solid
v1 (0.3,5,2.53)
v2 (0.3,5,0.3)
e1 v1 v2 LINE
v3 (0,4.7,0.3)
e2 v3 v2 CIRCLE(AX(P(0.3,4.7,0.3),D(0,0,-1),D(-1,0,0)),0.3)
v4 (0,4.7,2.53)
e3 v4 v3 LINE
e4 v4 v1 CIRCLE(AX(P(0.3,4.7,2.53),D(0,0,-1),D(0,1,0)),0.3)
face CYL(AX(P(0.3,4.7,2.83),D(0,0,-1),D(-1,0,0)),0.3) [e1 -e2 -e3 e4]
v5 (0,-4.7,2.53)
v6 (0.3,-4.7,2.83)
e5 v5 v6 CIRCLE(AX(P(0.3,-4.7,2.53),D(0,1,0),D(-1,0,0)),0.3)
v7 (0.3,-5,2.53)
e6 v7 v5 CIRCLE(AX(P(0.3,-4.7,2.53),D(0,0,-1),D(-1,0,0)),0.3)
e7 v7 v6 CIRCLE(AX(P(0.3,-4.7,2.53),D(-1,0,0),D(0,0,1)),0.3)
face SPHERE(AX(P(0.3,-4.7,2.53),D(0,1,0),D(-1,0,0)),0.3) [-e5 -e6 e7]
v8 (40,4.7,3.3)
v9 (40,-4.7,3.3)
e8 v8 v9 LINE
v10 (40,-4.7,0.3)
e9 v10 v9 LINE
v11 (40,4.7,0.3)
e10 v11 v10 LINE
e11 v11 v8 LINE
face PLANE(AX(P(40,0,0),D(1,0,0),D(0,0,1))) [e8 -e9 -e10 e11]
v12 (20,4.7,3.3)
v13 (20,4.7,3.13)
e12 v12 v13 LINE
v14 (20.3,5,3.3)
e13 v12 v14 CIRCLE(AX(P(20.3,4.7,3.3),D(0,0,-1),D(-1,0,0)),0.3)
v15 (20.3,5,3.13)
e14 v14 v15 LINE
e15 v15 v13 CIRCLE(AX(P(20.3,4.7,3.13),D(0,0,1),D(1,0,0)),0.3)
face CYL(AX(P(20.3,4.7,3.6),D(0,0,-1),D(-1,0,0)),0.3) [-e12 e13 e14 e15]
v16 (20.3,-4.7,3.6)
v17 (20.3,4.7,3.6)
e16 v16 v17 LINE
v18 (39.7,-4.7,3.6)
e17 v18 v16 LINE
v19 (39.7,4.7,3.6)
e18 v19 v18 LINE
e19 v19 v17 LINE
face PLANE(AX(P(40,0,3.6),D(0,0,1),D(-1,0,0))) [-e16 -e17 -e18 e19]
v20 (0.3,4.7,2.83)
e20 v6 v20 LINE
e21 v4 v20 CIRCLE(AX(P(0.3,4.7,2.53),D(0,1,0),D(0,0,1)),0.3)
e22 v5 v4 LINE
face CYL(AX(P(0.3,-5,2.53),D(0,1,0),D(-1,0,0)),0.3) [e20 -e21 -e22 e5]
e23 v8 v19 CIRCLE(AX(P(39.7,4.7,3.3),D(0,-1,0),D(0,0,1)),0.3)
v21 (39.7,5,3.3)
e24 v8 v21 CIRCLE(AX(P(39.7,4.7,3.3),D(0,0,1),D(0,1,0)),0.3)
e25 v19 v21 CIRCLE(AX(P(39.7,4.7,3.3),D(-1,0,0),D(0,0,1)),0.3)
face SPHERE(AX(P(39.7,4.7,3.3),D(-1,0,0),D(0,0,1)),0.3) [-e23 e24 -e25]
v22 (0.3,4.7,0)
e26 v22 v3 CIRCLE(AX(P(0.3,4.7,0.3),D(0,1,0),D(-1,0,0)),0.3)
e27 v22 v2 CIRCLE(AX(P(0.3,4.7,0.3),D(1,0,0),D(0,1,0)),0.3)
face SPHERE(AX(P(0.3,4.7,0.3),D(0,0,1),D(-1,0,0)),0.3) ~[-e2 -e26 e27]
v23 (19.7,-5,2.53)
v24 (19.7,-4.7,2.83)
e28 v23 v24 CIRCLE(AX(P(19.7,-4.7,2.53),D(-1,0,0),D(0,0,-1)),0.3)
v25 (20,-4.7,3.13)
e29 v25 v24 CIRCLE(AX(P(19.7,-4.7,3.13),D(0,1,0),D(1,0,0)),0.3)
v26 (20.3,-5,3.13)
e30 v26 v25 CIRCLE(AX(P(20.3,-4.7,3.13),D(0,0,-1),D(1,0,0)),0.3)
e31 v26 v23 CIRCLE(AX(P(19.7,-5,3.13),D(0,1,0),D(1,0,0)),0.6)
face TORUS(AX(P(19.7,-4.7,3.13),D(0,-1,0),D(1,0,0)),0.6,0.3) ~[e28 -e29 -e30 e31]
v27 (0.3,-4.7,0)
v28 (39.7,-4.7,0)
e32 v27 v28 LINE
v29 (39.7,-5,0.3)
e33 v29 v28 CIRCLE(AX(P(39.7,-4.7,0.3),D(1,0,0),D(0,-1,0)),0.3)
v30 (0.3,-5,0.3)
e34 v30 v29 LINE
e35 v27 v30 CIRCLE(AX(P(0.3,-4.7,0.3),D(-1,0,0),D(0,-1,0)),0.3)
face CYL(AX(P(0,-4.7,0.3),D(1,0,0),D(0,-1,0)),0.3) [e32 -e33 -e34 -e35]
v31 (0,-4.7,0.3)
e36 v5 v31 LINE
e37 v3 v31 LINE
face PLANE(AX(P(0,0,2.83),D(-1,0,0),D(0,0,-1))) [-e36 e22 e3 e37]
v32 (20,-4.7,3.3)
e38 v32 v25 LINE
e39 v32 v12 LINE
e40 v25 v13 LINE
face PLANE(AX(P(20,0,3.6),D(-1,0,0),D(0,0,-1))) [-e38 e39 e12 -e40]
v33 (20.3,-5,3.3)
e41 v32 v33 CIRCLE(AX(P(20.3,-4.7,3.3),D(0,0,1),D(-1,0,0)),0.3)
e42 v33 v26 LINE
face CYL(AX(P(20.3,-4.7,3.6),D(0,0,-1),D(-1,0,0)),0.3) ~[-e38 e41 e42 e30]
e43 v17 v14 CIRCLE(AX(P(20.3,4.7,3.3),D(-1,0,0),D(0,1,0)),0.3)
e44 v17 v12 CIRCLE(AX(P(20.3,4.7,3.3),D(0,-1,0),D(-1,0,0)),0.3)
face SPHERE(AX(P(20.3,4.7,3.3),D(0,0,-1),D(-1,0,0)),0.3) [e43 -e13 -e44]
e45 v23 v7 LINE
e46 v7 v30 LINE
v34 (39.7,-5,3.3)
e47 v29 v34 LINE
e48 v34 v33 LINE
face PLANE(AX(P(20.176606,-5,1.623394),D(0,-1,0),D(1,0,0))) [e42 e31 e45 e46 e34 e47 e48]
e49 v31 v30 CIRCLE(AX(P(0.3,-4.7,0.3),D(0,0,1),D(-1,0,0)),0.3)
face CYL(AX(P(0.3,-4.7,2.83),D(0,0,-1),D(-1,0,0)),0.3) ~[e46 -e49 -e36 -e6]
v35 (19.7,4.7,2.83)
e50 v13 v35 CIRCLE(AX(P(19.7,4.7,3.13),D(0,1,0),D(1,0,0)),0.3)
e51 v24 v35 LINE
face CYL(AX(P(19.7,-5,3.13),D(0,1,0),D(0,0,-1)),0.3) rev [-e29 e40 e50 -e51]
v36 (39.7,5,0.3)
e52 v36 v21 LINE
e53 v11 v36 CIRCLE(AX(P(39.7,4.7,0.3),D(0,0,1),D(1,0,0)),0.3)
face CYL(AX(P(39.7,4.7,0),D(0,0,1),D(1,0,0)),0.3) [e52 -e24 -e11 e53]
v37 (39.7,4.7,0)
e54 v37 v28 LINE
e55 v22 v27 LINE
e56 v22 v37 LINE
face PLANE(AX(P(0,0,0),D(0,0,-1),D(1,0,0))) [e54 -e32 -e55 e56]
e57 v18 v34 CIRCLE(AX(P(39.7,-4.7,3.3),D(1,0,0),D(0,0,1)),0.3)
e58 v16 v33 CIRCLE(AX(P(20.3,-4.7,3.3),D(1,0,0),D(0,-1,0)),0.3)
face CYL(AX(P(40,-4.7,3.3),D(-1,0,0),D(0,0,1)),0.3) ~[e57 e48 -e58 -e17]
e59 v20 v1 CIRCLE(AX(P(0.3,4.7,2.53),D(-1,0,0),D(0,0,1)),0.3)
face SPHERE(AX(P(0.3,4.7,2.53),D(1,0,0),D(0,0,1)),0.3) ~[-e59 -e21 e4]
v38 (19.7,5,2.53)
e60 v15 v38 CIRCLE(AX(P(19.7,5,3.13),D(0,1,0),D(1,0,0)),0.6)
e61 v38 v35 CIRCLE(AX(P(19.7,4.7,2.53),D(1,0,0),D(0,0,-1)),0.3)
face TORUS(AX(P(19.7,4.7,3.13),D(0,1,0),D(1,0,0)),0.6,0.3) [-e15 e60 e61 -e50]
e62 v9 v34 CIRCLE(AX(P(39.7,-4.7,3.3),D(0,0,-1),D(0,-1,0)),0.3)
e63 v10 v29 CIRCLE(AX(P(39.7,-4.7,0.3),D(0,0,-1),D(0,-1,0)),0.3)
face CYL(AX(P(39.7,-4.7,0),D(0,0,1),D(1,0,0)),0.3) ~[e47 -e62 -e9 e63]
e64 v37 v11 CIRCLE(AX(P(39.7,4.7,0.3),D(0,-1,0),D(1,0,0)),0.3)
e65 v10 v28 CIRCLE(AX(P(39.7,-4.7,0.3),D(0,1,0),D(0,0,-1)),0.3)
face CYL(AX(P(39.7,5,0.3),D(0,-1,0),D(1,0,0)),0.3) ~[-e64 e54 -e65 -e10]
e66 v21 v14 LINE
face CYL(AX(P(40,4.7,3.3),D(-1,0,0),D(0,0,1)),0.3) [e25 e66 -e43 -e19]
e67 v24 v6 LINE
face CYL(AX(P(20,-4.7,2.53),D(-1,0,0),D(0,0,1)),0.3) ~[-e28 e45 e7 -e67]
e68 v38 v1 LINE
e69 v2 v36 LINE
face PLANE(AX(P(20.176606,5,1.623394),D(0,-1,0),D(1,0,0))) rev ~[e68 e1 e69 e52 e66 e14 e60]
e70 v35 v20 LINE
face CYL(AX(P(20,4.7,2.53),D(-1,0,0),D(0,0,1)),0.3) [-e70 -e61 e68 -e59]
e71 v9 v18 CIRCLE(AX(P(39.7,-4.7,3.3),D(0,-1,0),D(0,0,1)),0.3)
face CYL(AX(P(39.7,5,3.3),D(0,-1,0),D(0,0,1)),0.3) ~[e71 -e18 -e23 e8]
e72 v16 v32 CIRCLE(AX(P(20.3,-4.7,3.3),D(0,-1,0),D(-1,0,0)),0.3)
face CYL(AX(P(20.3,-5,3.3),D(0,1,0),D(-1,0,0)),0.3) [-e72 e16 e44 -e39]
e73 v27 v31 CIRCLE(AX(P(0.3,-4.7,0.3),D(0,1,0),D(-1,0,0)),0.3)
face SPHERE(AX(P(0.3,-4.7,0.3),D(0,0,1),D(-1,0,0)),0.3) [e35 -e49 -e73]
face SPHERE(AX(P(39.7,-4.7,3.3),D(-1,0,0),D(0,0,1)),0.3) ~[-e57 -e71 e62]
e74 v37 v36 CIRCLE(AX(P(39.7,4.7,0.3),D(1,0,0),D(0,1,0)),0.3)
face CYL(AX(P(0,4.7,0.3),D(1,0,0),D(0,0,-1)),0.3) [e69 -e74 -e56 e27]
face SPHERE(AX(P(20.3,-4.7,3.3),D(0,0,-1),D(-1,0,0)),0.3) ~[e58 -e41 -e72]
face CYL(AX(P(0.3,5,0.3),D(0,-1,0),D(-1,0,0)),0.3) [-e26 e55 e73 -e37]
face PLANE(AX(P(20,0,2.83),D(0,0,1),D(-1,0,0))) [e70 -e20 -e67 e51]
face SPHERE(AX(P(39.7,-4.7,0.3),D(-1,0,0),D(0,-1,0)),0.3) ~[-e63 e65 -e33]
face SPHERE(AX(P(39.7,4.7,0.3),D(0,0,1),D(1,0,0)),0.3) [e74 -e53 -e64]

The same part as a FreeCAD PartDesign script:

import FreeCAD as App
import Part
import Sketcher
from FreeCAD import Vector

doc = App.newDocument("Part")
params = doc.addObject("Spreadsheet::Sheet", "Params")
for row, (alias, value) in enumerate([
    ("sketch1_width", "40 mm"),
    ("sketch1_height", "3.6 mm"),
    ("sketch1_height2", "2.83 mm"),
    ("pad1_length", "10 mm"),
    ("fillet_radius", "0.3 mm"),
], start=1):
    params.set(f"A{row}", alias)
    params.set(f"B{row}", "=" + value)
    params.setAlias(f"B{row}", alias)

body = doc.addObject("PartDesign::Body", "Body")

sketch1 = body.newObject("Sketcher::SketchObject", "Sketch")
sketch1.AttachmentSupport = (doc.getObject("XZ_Plane"), [""])
sketch1.MapMode = "FlatFace"
sketch1.addGeometry(Part.LineSegment(Vector(0, 2.8, 0), Vector(0, 0, 0)), False)
sketch1.addGeometry(Part.LineSegment(Vector(0, 0, 0), Vector(40, 0, 0)), False)
sketch1.addGeometry(Part.LineSegment(Vector(40, 0, 0), Vector(40, 3.6, 0)), False)
sketch1.addGeometry(Part.LineSegment(Vector(40, 3.6, 0), Vector(20, 3.6, 0)), False)
sketch1.addGeometry(Part.LineSegment(Vector(20, 3.6, 0), Vector(20, 2.8, 0)), False)
sketch1.addGeometry(Part.LineSegment(Vector(20, 2.8, 0), Vector(0, 2.8, 0)), False)
sketch1.addConstraint(Sketcher.Constraint("Coincident", 0, 2, 1, 1))
sketch1.addConstraint(Sketcher.Constraint("Coincident", 1, 2, 2, 1))
sketch1.addConstraint(Sketcher.Constraint("Coincident", 2, 2, 3, 1))
sketch1.addConstraint(Sketcher.Constraint("Coincident", 3, 2, 4, 1))
sketch1.addConstraint(Sketcher.Constraint("Coincident", 4, 2, 5, 1))
sketch1.addConstraint(Sketcher.Constraint("Coincident", 5, 2, 0, 1))
sketch1.addConstraint(Sketcher.Constraint("Vertical", 0))
sketch1.addConstraint(Sketcher.Constraint("Horizontal", 1))
sketch1.addConstraint(Sketcher.Constraint("Vertical", 2))
sketch1.addConstraint(Sketcher.Constraint("Horizontal", 3))
sketch1.addConstraint(Sketcher.Constraint("Vertical", 4))
sketch1.addConstraint(Sketcher.Constraint("Horizontal", 5))
sketch1.addConstraint(Sketcher.Constraint("Coincident", 0, 2, -1, 1))
sketch1.addConstraint(Sketcher.Constraint("Equal", 3, 5))
sketch1.addConstraint(Sketcher.Constraint("DistanceX", 1, 1, 1, 2, 40.0))
sketch1.addConstraint(Sketcher.Constraint("DistanceY", 2, 1, 2, 2, 3.6))
sketch1.addConstraint(Sketcher.Constraint("DistanceY", 0, 2, 0, 1, 2.83))
sketch1.setExpression("Constraints[14]", "Params.sketch1_width")
sketch1.setExpression("Constraints[15]", "Params.sketch1_height")
sketch1.setExpression("Constraints[16]", "Params.sketch1_height2")
pad1 = body.newObject("PartDesign::Pad", "Pad")
pad1.Profile = sketch1
pad1.setExpression("Length", "Params.pad1_length")
pad1.Midplane = True
doc.recompute()

fillet = body.newObject("PartDesign::Fillet", "Fillet")
fillet.Base = (pad1, ["Edge1"])
fillet.UseAllEdges = True
fillet.setExpression("Radius", "Params.fillet_radius")

doc.recompute()
